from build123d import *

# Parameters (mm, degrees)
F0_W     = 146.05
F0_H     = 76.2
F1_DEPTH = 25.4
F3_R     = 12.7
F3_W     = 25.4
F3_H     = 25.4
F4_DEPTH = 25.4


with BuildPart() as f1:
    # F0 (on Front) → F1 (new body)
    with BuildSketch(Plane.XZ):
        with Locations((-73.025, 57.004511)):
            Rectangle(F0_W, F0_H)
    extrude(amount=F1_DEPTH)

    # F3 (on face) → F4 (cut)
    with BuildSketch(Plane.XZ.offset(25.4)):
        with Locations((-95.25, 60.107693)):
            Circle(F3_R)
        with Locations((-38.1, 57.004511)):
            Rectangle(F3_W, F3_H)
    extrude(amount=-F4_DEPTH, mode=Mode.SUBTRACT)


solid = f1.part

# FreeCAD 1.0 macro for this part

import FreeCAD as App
import Part
import Sketcher
from FreeCAD import Vector
Q = App.Units.Quantity

doc = App.newDocument("Part")
params = doc.addObject("Spreadsheet::Sheet", "Params")
for row, (alias, value) in enumerate([
    ("sketch1_height", "3 in"),
    ("sketch1_width", "5.75 in"),
    ("pad1_length", "1 in"),
    ("sketch2_diameter", "1 in"),
    ("sketch2_width", "1 in"),
    ("pocket1_length", "1 in"),
], start=1):
    params.set(f"A{row}", alias)
    params.set(f"B{row}", "=" + value)
    params.setAlias(f"B{row}", alias)

body = doc.addObject("PartDesign::Body", "Body")

# Sketch on XZ plane
sketch1 = doc.addObject("Sketcher::SketchObject", "Sketch")
body.addObject(sketch1)
sketch1.AttachmentSupport = (doc.XZ_Plane, [""])
sketch1.MapMode = "FlatFace"
sketch1.addGeometry(Part.LineSegment(Vector(-146, 95, 0), Vector(-146, 19, 0)), False)
sketch1.addGeometry(Part.LineSegment(Vector(-146, 19, 0), Vector(0, 19, 0)), False)
sketch1.addGeometry(Part.LineSegment(Vector(0, 19, 0), Vector(0, 95, 0)), False)
sketch1.addGeometry(Part.LineSegment(Vector(0, 95, 0), Vector(-146, 95, 0)), False)
sketch1.addConstraint(Sketcher.Constraint("Coincident", 0, 2, 1, 1))
sketch1.addConstraint(Sketcher.Constraint("Coincident", 1, 2, 2, 1))
sketch1.addConstraint(Sketcher.Constraint("Coincident", 2, 2, 3, 1))
sketch1.addConstraint(Sketcher.Constraint("Coincident", 3, 2, 0, 1))
sketch1.addConstraint(Sketcher.Constraint("Vertical", 0))
sketch1.addConstraint(Sketcher.Constraint("Horizontal", 1))
sketch1.addConstraint(Sketcher.Constraint("Vertical", 2))
sketch1.addConstraint(Sketcher.Constraint("Horizontal", 3))
sketch1.addConstraint(Sketcher.Constraint("PointOnObject", 1, 2, -2))
sketch1.addConstraint(Sketcher.Constraint("DistanceY", 0, 2, 0, 1, Q("3 in")))
sketch1.addConstraint(Sketcher.Constraint("DistanceX", 1, 1, 1, 2, Q("5.75 in")))
sketch1.addConstraint(Sketcher.Constraint("DistanceY", -1, 1, 0, 2, 18.904511))
sketch1.setExpression("Constraints[9]", "Params.sketch1_height")
sketch1.setExpression("Constraints[10]", "Params.sketch1_width")
pad1 = doc.addObject("PartDesign::Pad", "Pad")
body.addObject(pad1)
pad1.Profile = sketch1
pad1.setExpression("Length", "Params.pad1_length")

# Sketch on XZ plane
sketch2 = doc.addObject("Sketcher::SketchObject", "Sketch001")
body.addObject(sketch2)
sketch2.AttachmentSupport = (doc.XZ_Plane, [""])
sketch2.MapMode = "FlatFace"
sketch2.AttachmentOffset = App.Placement(Vector(0, 0, 1 * 25.4), App.Rotation())
sketch2.addGeometry(Part.Circle(Vector(-95, 60, 0), Vector(0, 0, 1), 13), False)
sketch2.addGeometry(Part.LineSegment(Vector(-51, 70, 0), Vector(-51, 44, 0)), False)
sketch2.addGeometry(Part.LineSegment(Vector(-51, 44, 0), Vector(-25, 44, 0)), False)
sketch2.addGeometry(Part.LineSegment(Vector(-25, 44, 0), Vector(-25, 70, 0)), False)
sketch2.addGeometry(Part.LineSegment(Vector(-25, 70, 0), Vector(-51, 70, 0)), False)
sketch2.addConstraint(Sketcher.Constraint("Coincident", 1, 2, 2, 1))
sketch2.addConstraint(Sketcher.Constraint("Coincident", 2, 2, 3, 1))
sketch2.addConstraint(Sketcher.Constraint("Coincident", 3, 2, 4, 1))
sketch2.addConstraint(Sketcher.Constraint("Coincident", 4, 2, 1, 1))
sketch2.addConstraint(Sketcher.Constraint("Vertical", 1))
sketch2.addConstraint(Sketcher.Constraint("Horizontal", 2))
sketch2.addConstraint(Sketcher.Constraint("Vertical", 3))
sketch2.addConstraint(Sketcher.Constraint("Horizontal", 4))
sketch2.addConstraint(Sketcher.Constraint("Equal", 4, 1))
sketch2.addConstraint(Sketcher.Constraint("Diameter", 0, Q("1 in")))
sketch2.addConstraint(Sketcher.Constraint("DistanceX", 2, 1, 2, 2, Q("1 in")))
sketch2.addConstraint(Sketcher.Constraint("DistanceX", 1, 2, -1, 1, Q("2 in")))
sketch2.addConstraint(Sketcher.Constraint("DistanceX", 0, 3, -1, 1, Q("3.75 in")))
sketch2.addConstraint(Sketcher.Constraint("DistanceY", -1, 1, 1, 2, 44.304511))
sketch2.addConstraint(Sketcher.Constraint("DistanceY", -1, 1, 0, 3, 60.107693))
sketch2.setExpression("Constraints[9]", "Params.sketch2_diameter")
sketch2.setExpression("Constraints[10]", "Params.sketch2_width")
pocket1 = doc.addObject("PartDesign::Pocket", "Pocket")
body.addObject(pocket1)
pocket1.Profile = sketch2
pocket1.setExpression("Length", "Params.pocket1_length")

doc.recompute()
